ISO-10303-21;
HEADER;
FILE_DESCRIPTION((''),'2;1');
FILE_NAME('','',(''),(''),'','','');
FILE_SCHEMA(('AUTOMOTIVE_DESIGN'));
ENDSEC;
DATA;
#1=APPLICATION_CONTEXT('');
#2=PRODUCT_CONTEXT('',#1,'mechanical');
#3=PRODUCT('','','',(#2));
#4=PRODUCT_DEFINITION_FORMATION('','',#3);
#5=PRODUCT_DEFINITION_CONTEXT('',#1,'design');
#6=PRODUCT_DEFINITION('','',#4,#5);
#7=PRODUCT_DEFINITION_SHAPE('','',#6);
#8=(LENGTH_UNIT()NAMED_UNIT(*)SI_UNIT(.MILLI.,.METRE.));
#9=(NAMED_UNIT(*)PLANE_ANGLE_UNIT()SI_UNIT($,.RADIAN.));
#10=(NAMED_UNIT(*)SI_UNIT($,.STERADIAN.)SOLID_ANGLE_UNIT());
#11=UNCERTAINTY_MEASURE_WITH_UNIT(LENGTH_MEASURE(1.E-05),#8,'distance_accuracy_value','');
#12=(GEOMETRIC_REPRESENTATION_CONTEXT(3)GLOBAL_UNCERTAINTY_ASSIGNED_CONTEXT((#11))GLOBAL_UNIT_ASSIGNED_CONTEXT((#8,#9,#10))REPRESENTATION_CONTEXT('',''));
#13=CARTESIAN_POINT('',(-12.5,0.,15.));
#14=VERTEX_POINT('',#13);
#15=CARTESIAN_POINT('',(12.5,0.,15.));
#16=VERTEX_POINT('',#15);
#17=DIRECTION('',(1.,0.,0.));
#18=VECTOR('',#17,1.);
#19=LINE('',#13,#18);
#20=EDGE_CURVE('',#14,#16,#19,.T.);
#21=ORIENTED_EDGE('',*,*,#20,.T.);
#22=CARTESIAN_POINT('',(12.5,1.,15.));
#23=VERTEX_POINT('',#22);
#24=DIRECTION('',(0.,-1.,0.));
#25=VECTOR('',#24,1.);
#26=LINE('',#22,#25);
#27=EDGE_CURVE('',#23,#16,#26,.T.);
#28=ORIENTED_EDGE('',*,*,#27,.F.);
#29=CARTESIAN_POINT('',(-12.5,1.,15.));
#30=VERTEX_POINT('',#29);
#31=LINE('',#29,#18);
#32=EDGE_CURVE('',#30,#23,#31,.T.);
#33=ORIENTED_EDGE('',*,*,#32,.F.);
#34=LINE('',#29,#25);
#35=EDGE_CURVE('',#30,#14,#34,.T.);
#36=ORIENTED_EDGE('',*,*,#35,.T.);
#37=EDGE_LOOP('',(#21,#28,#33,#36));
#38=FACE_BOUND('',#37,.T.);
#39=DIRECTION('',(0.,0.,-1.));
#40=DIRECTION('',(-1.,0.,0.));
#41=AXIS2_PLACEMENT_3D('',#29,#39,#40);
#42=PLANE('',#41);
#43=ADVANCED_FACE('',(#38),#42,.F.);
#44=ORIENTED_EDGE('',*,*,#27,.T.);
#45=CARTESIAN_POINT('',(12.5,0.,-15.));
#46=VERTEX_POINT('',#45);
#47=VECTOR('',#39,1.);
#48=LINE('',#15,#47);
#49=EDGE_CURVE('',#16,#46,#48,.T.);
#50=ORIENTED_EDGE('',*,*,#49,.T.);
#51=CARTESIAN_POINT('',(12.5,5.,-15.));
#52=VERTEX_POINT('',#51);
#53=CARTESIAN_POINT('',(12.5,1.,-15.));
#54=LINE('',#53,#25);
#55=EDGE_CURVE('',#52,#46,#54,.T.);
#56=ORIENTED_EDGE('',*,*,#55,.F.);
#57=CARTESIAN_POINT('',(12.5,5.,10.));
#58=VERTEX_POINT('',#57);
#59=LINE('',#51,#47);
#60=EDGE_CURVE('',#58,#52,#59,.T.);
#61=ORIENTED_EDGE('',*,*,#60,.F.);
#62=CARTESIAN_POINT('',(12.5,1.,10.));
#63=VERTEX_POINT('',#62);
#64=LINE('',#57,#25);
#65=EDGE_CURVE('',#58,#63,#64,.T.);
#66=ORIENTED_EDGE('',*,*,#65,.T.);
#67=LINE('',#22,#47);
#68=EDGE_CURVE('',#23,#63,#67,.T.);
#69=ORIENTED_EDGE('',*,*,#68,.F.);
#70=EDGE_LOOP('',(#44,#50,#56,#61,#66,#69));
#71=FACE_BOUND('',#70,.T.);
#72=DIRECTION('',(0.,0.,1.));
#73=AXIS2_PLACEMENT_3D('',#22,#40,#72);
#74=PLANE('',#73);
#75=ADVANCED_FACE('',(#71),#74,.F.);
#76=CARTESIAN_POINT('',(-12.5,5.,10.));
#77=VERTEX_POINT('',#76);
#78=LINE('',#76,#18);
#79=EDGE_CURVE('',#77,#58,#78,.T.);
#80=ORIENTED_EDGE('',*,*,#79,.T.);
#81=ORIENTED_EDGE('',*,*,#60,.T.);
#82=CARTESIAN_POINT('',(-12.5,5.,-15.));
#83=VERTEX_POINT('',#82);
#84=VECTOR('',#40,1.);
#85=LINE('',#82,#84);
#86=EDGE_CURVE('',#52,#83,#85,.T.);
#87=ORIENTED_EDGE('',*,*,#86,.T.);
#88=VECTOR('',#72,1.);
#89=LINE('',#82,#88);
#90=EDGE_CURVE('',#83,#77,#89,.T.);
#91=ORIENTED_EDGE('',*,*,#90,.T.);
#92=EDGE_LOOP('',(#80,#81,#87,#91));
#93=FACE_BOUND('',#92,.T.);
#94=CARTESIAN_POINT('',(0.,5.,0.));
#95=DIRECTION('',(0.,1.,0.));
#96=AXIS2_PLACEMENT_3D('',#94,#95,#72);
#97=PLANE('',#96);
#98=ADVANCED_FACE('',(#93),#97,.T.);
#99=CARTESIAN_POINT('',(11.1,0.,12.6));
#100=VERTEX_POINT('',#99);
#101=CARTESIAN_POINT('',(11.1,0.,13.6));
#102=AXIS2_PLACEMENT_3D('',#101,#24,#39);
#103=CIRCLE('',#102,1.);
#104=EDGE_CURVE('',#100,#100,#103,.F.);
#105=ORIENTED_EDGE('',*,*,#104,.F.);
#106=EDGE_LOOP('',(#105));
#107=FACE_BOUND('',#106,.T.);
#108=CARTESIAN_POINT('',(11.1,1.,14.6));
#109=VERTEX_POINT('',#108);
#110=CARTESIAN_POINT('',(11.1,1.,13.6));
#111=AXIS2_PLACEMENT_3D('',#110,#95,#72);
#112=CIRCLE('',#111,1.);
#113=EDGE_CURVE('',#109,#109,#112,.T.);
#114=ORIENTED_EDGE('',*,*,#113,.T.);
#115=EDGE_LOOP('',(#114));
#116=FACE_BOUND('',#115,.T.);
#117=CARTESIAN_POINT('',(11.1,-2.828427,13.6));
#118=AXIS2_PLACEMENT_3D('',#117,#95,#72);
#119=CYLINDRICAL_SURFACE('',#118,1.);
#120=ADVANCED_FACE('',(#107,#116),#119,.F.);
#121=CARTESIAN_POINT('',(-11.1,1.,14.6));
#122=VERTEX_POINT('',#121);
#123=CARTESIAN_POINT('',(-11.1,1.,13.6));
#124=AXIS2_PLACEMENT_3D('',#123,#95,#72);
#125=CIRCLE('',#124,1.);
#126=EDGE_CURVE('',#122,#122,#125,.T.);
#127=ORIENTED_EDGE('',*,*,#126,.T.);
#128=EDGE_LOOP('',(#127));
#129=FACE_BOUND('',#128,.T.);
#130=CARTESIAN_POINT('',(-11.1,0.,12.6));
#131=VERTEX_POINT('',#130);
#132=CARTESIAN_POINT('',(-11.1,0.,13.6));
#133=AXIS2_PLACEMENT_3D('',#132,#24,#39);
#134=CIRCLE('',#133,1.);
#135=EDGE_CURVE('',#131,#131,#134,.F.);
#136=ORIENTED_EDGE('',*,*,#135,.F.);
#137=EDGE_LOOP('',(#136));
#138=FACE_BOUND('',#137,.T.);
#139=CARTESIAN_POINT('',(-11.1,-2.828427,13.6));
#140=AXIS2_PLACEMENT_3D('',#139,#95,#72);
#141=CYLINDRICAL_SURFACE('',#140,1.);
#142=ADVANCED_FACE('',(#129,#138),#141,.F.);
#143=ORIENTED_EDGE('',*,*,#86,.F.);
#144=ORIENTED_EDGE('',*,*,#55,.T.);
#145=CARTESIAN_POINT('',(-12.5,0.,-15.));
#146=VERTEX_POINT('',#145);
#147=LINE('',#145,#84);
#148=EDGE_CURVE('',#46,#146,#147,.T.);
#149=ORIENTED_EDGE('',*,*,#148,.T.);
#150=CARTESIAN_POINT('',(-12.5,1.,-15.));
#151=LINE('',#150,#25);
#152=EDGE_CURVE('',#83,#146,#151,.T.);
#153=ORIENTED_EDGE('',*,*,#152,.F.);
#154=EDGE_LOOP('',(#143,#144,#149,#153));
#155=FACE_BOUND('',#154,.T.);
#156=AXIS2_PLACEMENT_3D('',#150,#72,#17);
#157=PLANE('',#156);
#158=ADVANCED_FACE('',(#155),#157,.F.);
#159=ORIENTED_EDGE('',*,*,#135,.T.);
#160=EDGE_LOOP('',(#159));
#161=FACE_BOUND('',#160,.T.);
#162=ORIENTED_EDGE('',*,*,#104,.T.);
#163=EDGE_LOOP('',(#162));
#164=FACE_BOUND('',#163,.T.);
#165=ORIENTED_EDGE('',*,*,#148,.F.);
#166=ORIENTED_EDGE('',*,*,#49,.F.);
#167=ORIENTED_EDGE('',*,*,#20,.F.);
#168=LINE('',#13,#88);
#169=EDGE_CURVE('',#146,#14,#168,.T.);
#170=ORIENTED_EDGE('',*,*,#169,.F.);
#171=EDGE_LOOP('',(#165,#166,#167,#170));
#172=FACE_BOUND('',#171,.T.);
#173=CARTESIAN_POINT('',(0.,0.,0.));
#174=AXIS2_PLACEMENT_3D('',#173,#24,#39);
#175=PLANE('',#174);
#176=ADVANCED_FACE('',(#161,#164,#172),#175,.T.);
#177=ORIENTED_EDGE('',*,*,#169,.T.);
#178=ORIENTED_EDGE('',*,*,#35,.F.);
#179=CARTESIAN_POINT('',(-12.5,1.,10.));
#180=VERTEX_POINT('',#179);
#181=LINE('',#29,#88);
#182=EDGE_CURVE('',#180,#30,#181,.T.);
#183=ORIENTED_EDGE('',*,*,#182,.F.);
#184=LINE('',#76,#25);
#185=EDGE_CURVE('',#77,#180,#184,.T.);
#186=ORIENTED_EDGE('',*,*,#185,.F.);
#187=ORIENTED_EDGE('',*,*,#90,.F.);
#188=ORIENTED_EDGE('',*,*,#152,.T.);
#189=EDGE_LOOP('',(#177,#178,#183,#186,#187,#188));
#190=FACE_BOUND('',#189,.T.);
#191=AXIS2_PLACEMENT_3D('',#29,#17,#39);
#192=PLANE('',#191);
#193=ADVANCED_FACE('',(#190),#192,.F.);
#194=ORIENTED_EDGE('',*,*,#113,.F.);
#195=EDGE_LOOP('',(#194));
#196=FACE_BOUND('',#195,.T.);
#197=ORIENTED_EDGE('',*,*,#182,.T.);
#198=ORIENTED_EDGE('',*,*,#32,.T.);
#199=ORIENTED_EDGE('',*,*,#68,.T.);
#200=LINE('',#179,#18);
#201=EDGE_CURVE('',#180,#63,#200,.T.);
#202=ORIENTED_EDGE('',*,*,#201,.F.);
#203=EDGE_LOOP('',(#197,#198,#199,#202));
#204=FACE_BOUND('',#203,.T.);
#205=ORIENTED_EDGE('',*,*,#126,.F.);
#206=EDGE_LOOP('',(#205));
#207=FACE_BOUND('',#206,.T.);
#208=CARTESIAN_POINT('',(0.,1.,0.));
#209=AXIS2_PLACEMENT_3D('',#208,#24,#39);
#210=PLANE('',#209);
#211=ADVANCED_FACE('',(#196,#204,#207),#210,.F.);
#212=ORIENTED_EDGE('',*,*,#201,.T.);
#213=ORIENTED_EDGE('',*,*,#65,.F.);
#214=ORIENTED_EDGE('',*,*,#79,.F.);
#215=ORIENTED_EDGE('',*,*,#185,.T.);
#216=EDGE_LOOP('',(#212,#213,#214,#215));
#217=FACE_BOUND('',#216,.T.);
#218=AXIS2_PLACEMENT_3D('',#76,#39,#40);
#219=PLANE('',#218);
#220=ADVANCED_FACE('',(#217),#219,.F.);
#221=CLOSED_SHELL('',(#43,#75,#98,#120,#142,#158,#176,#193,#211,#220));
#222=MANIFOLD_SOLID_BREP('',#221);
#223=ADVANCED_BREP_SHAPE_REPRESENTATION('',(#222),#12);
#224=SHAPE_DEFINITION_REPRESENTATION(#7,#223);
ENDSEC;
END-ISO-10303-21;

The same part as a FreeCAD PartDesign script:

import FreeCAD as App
import Part
import Sketcher
from FreeCAD import Vector
Q = App.Units.Quantity

doc = App.newDocument("Part")
params = doc.addObject("Spreadsheet::Sheet", "Params")
for row, (alias, value) in enumerate([
    ("sketch1_width", "25 mm"),
    ("sketch1_height", "30 mm"),
    ("pad1_length", "1 mm"),
    ("sketch2_width", "25 mm"),
    ("pad2_length", "4 mm"),
    ("sketch3_diameter", "2 mm"),
    ("pocket1_length", "1 mm"),
], start=1):
    params.set(f"A{row}", alias)
    params.set(f"B{row}", "=" + value)
    params.setAlias(f"B{row}", alias)

body = doc.addObject("PartDesign::Body", "Body")

# Sketch on XZ plane
sketch1 = body.newObject("Sketcher::SketchObject", "Sketch")
sketch1.AttachmentSupport = (doc.getObject("XZ_Plane"), [""])
sketch1.MapMode = "FlatFace"
sketch1.addGeometry([
    Part.LineSegment(Vector(-12, -15, 0), Vector(-12, 15, 0)),
    Part.LineSegment(Vector(-12, 15, 0), Vector(12, 15, 0)),
    Part.LineSegment(Vector(12, 15, 0), Vector(12, -15, 0)),
    Part.LineSegment(Vector(12, -15, 0), Vector(-12, -15, 0)),
], False)
sketch1.addConstraint([
    Sketcher.Constraint("Coincident", 0, 2, 1, 1),
    Sketcher.Constraint("Coincident", 1, 2, 2, 1),
    Sketcher.Constraint("Coincident", 2, 2, 3, 1),
    Sketcher.Constraint("Coincident", 3, 2, 0, 1),
    Sketcher.Constraint("Vertical", 0),
    Sketcher.Constraint("Horizontal", 1),
    Sketcher.Constraint("Vertical", 2),
    Sketcher.Constraint("Horizontal", 3),
    Sketcher.Constraint("Symmetric", 0, 2, 2, 2, -1, 1),
    Sketcher.Constraint("DistanceX", 1, 1, 1, 2, Q("25 mm")),
    Sketcher.Constraint("DistanceY", 0, 1, 0, 2, Q("30 mm")),
])
sketch1.setExpression("Constraints[9]", "Params.sketch1_width")
sketch1.setExpression("Constraints[10]", "Params.sketch1_height")
pad1 = body.newObject("PartDesign::Pad", "Pad")
pad1.Profile = sketch1
pad1.setExpression("Length", "Params.pad1_length")
pad1.Reversed = True

# Sketch on XZ plane
sketch2 = body.newObject("Sketcher::SketchObject", "Sketch001")
sketch2.AttachmentSupport = (doc.getObject("XZ_Plane"), [""])
sketch2.MapMode = "FlatFace"
sketch2.AttachmentOffset = App.Placement(Vector(0, 0, -1), App.Rotation())
sketch2.addGeometry([
    Part.LineSegment(Vector(-12, -15, 0), Vector(-12, 10, 0)),
    Part.LineSegment(Vector(-12, 10, 0), Vector(12, 10, 0)),
    Part.LineSegment(Vector(12, 10, 0), Vector(12, -15, 0)),
    Part.LineSegment(Vector(12, -15, 0), Vector(-12, -15, 0)),
], False)
sketch2.addConstraint([
    Sketcher.Constraint("Coincident", 0, 2, 1, 1),
    Sketcher.Constraint("Coincident", 1, 2, 2, 1),
    Sketcher.Constraint("Coincident", 2, 2, 3, 1),
    Sketcher.Constraint("Coincident", 3, 2, 0, 1),
    Sketcher.Constraint("Vertical", 0),
    Sketcher.Constraint("Horizontal", 1),
    Sketcher.Constraint("Vertical", 2),
    Sketcher.Constraint("Horizontal", 3),
    Sketcher.Constraint("Equal", 3, 0),
    Sketcher.Constraint("DistanceX", 1, 1, 1, 2, Q("25 mm")),
    Sketcher.Constraint("DistanceY", -1, 1, 0, 2, Q("10 mm")),
    Sketcher.Constraint("DistanceX", 0, 2, -1, 1, Q("12.5 mm")),
])
sketch2.setExpression("Constraints[9]", "Params.sketch2_width")
pad2 = body.newObject("PartDesign::Pad", "Pad001")
pad2.Profile = sketch2
pad2.setExpression("Length", "Params.pad2_length")
pad2.Reversed = True

# Sketch on XZ plane
sketch3 = body.newObject("Sketcher::SketchObject", "Sketch002")
sketch3.AttachmentSupport = (doc.getObject("XZ_Plane"), [""])
sketch3.MapMode = "FlatFace"
sketch3.AttachmentOffset = App.Placement(Vector(0, 0, -1), App.Rotation())
sketch3.addGeometry([
    Part.Circle(Vector(-11.1, 13.6, 0), Vector(0, 0, 1), 1),
    Part.Circle(Vector(11.1, 13.6, 0), Vector(0, 0, 1), 1),
], False)
sketch3.addConstraint([
    Sketcher.Constraint("Equal", 0, 1),
    Sketcher.Constraint("Symmetric", 0, 3, 1, 3, -2),
    Sketcher.Constraint("Diameter", 0, Q("2 mm")),
    Sketcher.Constraint("DistanceX", 0, 3, -1, 1, Q("11.1 mm")),
    Sketcher.Constraint("DistanceY", -1, 1, 0, 3, Q("13.6 mm")),
])
sketch3.setExpression("Constraints[2]", "Params.sketch3_diameter")
pocket1 = body.newObject("PartDesign::Pocket", "Pocket")
pocket1.Profile = sketch3
pocket1.setExpression("Length", "Params.pocket1_length")
pocket1.Reversed = True

doc.recompute()
